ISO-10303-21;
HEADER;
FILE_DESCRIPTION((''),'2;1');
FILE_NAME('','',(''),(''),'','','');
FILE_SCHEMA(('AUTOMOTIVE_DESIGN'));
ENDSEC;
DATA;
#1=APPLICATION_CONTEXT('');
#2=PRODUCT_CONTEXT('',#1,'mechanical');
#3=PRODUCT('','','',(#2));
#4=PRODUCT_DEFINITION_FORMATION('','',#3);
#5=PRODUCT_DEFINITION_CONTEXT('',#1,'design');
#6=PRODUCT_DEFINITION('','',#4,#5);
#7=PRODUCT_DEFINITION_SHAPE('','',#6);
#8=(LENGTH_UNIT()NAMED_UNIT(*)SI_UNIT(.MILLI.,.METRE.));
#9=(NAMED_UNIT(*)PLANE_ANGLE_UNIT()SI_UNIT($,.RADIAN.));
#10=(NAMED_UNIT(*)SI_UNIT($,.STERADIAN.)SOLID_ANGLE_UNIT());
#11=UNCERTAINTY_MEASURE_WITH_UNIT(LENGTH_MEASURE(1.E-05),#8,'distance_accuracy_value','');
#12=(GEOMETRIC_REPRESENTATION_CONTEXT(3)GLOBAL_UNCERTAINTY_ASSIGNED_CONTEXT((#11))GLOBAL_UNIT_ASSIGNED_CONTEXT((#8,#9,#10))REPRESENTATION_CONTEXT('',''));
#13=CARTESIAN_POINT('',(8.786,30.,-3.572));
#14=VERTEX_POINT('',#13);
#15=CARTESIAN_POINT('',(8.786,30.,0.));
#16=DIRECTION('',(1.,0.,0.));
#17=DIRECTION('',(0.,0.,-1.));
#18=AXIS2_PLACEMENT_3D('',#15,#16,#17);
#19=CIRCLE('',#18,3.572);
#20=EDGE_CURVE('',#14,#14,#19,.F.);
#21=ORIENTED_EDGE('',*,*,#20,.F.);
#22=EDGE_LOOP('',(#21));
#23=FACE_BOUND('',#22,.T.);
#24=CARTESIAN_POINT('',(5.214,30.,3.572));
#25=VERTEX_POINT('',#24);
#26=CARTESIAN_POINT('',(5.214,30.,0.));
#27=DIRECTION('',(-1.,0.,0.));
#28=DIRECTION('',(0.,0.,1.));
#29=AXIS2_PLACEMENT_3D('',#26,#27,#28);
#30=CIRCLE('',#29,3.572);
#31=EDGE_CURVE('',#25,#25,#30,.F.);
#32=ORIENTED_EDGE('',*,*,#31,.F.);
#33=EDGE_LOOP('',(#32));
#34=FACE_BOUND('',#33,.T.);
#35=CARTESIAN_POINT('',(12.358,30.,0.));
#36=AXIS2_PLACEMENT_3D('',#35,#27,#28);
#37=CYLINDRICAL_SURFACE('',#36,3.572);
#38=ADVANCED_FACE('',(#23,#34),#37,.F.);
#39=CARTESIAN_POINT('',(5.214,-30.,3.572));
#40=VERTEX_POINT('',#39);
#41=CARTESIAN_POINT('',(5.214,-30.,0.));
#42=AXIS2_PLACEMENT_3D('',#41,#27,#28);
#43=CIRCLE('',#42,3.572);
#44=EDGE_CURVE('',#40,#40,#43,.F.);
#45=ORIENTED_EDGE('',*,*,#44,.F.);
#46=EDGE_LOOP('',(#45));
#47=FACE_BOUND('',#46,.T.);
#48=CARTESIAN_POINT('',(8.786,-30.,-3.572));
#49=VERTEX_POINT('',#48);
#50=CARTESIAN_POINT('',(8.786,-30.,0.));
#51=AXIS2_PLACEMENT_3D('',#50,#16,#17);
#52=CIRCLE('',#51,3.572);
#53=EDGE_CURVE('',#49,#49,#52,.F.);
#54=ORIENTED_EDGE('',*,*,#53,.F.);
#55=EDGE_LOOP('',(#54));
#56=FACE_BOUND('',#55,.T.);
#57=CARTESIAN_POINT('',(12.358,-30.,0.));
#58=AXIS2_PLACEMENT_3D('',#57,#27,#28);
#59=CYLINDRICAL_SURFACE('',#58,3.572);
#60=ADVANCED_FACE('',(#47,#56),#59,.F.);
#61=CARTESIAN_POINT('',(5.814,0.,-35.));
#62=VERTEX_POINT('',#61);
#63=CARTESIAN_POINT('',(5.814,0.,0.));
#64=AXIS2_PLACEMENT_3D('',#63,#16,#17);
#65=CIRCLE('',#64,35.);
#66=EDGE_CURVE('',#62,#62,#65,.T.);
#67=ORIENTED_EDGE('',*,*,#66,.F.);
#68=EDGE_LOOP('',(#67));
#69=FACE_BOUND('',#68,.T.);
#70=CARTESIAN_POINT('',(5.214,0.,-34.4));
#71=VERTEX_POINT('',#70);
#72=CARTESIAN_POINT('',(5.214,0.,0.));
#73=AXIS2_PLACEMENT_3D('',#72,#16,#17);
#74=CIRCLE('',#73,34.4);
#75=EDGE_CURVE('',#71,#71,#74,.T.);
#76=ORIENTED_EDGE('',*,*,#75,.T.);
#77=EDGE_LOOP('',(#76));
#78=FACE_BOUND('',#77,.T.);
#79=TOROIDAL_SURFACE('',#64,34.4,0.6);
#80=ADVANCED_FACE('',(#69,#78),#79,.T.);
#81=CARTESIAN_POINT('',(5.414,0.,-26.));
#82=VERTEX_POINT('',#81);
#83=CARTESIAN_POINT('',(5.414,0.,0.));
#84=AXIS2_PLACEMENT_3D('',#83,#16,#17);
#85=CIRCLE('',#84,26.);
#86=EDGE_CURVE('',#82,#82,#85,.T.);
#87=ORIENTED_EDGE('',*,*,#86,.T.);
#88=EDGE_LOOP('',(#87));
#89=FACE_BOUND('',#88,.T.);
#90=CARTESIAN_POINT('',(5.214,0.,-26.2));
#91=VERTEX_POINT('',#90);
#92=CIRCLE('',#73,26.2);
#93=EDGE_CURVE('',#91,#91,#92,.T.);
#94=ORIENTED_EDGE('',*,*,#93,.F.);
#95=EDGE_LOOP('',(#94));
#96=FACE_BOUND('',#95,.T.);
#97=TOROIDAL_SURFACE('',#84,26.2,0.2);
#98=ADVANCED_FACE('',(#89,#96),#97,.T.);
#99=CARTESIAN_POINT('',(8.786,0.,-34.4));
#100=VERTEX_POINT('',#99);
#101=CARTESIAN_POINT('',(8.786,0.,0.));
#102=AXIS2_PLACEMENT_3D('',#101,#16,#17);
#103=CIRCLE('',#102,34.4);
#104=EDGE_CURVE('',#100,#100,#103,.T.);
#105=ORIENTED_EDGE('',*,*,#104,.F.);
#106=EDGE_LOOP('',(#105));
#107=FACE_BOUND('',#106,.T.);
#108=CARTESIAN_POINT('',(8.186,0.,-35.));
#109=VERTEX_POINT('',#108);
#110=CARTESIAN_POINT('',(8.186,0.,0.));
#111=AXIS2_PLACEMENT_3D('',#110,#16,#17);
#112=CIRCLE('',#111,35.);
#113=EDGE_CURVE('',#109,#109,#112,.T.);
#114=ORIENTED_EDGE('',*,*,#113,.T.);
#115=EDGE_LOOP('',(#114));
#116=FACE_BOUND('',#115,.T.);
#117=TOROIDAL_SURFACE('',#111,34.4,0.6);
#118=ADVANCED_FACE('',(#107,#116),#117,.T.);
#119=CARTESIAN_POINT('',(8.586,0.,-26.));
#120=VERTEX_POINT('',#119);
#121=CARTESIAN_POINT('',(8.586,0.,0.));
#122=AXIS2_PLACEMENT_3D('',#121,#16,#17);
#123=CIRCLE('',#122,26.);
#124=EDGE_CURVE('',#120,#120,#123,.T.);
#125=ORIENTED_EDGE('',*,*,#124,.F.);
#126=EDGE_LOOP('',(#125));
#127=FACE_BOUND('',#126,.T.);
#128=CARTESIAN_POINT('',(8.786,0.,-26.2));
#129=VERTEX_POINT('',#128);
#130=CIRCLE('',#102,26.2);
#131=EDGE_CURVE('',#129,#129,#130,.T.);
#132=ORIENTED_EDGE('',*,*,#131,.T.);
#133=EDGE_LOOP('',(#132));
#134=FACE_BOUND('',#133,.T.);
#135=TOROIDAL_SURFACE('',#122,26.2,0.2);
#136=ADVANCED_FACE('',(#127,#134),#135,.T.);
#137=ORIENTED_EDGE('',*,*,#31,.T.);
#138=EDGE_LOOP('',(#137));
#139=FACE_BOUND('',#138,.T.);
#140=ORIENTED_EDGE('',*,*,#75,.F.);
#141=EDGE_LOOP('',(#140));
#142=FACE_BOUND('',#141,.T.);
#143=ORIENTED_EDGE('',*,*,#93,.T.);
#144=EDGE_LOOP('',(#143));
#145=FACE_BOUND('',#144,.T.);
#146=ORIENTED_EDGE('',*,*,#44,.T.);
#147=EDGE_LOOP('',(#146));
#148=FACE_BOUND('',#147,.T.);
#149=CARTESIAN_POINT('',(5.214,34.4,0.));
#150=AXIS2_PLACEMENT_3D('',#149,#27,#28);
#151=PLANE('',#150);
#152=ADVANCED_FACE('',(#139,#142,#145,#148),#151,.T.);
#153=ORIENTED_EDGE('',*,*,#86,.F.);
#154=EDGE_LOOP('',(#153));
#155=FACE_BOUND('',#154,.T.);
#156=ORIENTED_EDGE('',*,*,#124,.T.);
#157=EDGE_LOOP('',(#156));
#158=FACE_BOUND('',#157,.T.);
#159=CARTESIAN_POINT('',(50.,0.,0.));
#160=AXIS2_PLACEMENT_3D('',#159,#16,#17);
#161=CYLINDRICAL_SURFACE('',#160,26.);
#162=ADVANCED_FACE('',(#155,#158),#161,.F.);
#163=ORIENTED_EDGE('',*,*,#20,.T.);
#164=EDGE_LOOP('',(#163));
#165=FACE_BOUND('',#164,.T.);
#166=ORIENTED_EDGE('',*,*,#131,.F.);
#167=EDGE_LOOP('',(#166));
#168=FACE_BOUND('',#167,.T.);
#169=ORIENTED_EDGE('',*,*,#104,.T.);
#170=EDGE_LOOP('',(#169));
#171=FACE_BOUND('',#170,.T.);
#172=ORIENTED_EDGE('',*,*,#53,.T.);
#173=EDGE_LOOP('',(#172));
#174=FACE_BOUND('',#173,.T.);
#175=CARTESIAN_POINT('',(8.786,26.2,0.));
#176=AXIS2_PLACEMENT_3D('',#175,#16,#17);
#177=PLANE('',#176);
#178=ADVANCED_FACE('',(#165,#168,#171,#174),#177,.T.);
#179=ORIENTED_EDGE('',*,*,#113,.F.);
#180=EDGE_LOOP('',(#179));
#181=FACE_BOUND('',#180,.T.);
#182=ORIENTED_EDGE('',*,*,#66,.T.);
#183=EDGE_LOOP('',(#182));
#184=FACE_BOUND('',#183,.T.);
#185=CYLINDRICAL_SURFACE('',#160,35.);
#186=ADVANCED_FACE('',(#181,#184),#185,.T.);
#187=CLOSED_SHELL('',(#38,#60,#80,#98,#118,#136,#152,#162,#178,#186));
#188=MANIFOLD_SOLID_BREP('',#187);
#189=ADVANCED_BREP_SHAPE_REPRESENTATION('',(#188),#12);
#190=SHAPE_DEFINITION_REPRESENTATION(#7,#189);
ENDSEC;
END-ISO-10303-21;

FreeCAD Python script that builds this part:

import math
import FreeCAD as App
import Part
import Sketcher
Q = App.Units.Quantity

doc = App.newDocument("Part")
body = doc.addObject("PartDesign::Body", "Body")

sketch1 = doc.addObject("Sketcher::SketchObject", "Sketch")
body.addObject(sketch1)
sketch1.AttachmentSupport = (doc.XY_Plane, [""])
sketch1.MapMode = "FlatFace"
sketch1.addGeometry(Part.LineSegment(App.Vector(5.21, 34.4, 0), App.Vector(5.21, 26.2, 0)), False)
sketch1.addGeometry(Part.ArcOfCircle(Part.Circle(App.Vector(5.41, 26.2, 0), App.Vector(0, 0, 1), 0.2), math.radians(-180), math.radians(-90)), False)
sketch1.addGeometry(Part.LineSegment(App.Vector(5.41, 26, 0), App.Vector(8.59, 26, 0)), False)
sketch1.addGeometry(Part.ArcOfCircle(Part.Circle(App.Vector(8.59, 26.2, 0), App.Vector(0, 0, 1), 0.2), math.radians(-90), math.radians(0)), False)
sketch1.addGeometry(Part.LineSegment(App.Vector(8.79, 26.2, 0), App.Vector(8.79, 34.4, 0)), False)
sketch1.addGeometry(Part.ArcOfCircle(Part.Circle(App.Vector(8.19, 34.4, 0), App.Vector(0, 0, 1), 0.6), math.radians(0), math.radians(90)), False)
sketch1.addGeometry(Part.LineSegment(App.Vector(8.19, 35, 0), App.Vector(5.81, 35, 0)), False)
sketch1.addGeometry(Part.ArcOfCircle(Part.Circle(App.Vector(5.81, 34.4, 0), App.Vector(0, 0, 1), 0.6), math.radians(90), math.radians(180)), False)
sketch1.addConstraint(Sketcher.Constraint("Tangent", 0, 2, 1, 1))
sketch1.addConstraint(Sketcher.Constraint("Tangent", 1, 2, 2, 1))
sketch1.addConstraint(Sketcher.Constraint("Tangent", 2, 2, 3, 1))
sketch1.addConstraint(Sketcher.Constraint("Tangent", 3, 2, 4, 1))
sketch1.addConstraint(Sketcher.Constraint("Tangent", 4, 2, 5, 1))
sketch1.addConstraint(Sketcher.Constraint("Tangent", 5, 2, 6, 1))
sketch1.addConstraint(Sketcher.Constraint("Tangent", 6, 2, 7, 1))
sketch1.addConstraint(Sketcher.Constraint("Tangent", 7, 2, 0, 1))
sketch1.addConstraint(Sketcher.Constraint("Vertical", 0))
sketch1.addConstraint(Sketcher.Constraint("Horizontal", 2))
sketch1.addConstraint(Sketcher.Constraint("Vertical", 4))
sketch1.addConstraint(Sketcher.Constraint("Horizontal", 6))
sketch1.addConstraint(Sketcher.Constraint("Equal", 1, 3))
sketch1.addConstraint(Sketcher.Constraint("Equal", 5, 7))
sketch1.addConstraint(Sketcher.Constraint("Radius", 1, Q("0.2 mm")))
sketch1.addConstraint(Sketcher.Constraint("Radius", 5, Q("0.6 mm")))
sketch1.addConstraint(Sketcher.Constraint("DistanceY", 0, 2, 0, 1, Q("8.2 mm")))
sketch1.addConstraint(Sketcher.Constraint("DistanceY", -1, 1, 1, 2, Q("26 mm")))
sketch1.addConstraint(Sketcher.Constraint("DistanceX", 2, 1, 2, 2, Q("3.172 mm")))
sketch1.addConstraint(Sketcher.Constraint("DistanceX", -1, 1, 1, 3, Q("5.414 mm")))
revolution = doc.addObject("PartDesign::Revolution", "Revolution")
body.addObject(revolution)
revolution.Profile = sketch1
revolution.ReferenceAxis = (sketch1, ["H_Axis"])
revolution.Angle = 360

sketch2 = doc.addObject("Sketcher::SketchObject", "Sketch001")
body.addObject(sketch2)
sketch2.AttachmentSupport = (doc.YZ_Plane, [""])
sketch2.MapMode = "FlatFace"
sketch2.addGeometry(Part.Circle(App.Vector(30, 0, 0), App.Vector(0, 0, 1), 3.6), False)
sketch2.addConstraint(Sketcher.Constraint("PointOnObject", 0, 3, -1))
sketch2.addConstraint(Sketcher.Constraint("Diameter", 0, Q("7.144 mm")))
sketch2.addConstraint(Sketcher.Constraint("DistanceX", -1, 1, 0, 3, Q("30 mm")))
pocket1 = doc.addObject("PartDesign::Pocket", "Pocket")
body.addObject(pocket1)
pocket1.Profile = sketch2
pocket1.Length = 12.358
pocket1.Reversed = True

sketch3 = doc.addObject("Sketcher::SketchObject", "Sketch002")
body.addObject(sketch3)
sketch3.AttachmentSupport = (doc.YZ_Plane, [""])
sketch3.MapMode = "FlatFace"
sketch3.addGeometry(Part.Circle(App.Vector(-30, 0, 0), App.Vector(0, 0, 1), 3.6), False)
sketch3.addConstraint(Sketcher.Constraint("PointOnObject", 0, 3, -1))
sketch3.addConstraint(Sketcher.Constraint("Diameter", 0, Q("7.144 mm")))
sketch3.addConstraint(Sketcher.Constraint("DistanceX", 0, 3, -1, 1, Q("30 mm")))
pocket2 = doc.addObject("PartDesign::Pocket", "Pocket001")
body.addObject(pocket2)
pocket2.Profile = sketch3
pocket2.Length = 12.358
pocket2.Reversed = True

doc.recompute()
